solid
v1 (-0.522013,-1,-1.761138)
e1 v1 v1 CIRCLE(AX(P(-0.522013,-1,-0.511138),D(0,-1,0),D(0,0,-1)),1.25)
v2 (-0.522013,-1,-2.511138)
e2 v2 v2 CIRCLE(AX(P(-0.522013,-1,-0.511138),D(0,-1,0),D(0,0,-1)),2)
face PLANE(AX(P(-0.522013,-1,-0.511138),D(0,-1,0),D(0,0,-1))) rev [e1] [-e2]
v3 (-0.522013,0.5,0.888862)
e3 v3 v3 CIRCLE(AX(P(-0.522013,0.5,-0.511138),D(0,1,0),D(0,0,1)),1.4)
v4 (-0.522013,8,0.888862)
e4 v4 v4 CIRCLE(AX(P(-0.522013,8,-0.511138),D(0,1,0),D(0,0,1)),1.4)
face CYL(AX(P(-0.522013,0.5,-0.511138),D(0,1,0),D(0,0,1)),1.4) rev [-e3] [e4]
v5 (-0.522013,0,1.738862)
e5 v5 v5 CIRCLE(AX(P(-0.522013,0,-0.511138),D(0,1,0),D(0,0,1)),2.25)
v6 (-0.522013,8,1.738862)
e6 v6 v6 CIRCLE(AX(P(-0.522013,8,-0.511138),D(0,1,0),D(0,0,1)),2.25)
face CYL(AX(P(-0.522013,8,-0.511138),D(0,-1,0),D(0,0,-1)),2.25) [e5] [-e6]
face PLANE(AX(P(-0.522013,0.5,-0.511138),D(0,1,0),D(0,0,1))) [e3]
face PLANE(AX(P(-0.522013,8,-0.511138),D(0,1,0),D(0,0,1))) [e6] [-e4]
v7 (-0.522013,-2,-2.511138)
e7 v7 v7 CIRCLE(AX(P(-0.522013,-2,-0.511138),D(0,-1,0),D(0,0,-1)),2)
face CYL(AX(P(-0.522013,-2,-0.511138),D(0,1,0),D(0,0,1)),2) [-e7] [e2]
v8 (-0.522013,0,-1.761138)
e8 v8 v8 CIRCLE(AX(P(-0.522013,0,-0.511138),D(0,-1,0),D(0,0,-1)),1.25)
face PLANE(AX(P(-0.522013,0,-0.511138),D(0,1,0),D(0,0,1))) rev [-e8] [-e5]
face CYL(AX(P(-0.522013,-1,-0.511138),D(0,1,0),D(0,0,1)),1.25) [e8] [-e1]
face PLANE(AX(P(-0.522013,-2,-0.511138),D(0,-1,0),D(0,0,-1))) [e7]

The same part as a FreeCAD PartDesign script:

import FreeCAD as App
import Part
import Sketcher

V = App.Vector
Q = App.Units.Quantity

doc = App.newDocument("Part")
params = doc.addObject("Spreadsheet::Sheet", "Params")
for row, (alias, value) in enumerate([
    ("sketch1_diameter", "4.5 mm"),
    ("pad1_length", "8 mm"),
    ("sketch2_diameter", "2.75 mm"),
    ("pad2_length", "1 mm"),
    ("sketch3_diameter", "2.5 mm"),
    ("pad3_length", "1 mm"),
    ("sketch4_diameter", "4 mm"),
    ("pad4_length", "1 mm"),
    ("sketch5_diameter", "2.8 mm"),
    ("pocket1_length", "7.5 mm"),
], start=1):
    params.set(f"A{row}", alias)
    params.set(f"B{row}", "=" + value)
    params.setAlias(f"B{row}", alias)

body = doc.addObject("PartDesign::Body", "Body")

# Sketch on XZ plane
sketch1 = body.newObject("Sketcher::SketchObject", "Sketch")
sketch1.AttachmentSupport = (doc.getObject("XZ_Plane"), [""])
sketch1.MapMode = "FlatFace"
sketch1.addGeometry(Part.Circle(V(-0.522013, -0.511138, 0), V(0, 0, 1), 2.25), False)
sketch1.addConstraint([
    Sketcher.Constraint("Diameter", 0, Q("4.5 mm")),
    Sketcher.Constraint("DistanceY", 0, 3, -1, 1, Q("0.511138 mm")),
    Sketcher.Constraint("DistanceX", 0, 3, -1, 1, Q("0.522013 mm")),
])
sketch1.setExpression("Constraints[0]", "Params.sketch1_diameter")
pad1 = body.newObject("PartDesign::Pad", "Pad")
pad1.Profile = sketch1
pad1.setExpression("Length", "Params.pad1_length")
pad1.Reversed = True

# Sketch on XZ plane
sketch2 = body.newObject("Sketcher::SketchObject", "Sketch001")
sketch2.AttachmentSupport = (doc.getObject("XZ_Plane"), [""])
sketch2.MapMode = "FlatFace"
sketch2.addGeometry(Part.Circle(V(-0.522013, -0.511138, 0), V(0, 0, 1), 1.375), False)
sketch2.addConstraint([
    Sketcher.Constraint("Diameter", 0, Q("2.75 mm")),
    Sketcher.Constraint("DistanceY", 0, 3, -1, 1, Q("0.511138 mm")),
    Sketcher.Constraint("DistanceX", 0, 3, -1, 1, Q("0.522013 mm")),
])
sketch2.setExpression("Constraints[0]", "Params.sketch2_diameter")
pad2 = body.newObject("PartDesign::Pad", "Pad001")
pad2.Profile = sketch2
pad2.setExpression("Length", "Params.pad2_length")
pad2.Reversed = True

# Sketch on XZ plane
sketch3 = body.newObject("Sketcher::SketchObject", "Sketch002")
sketch3.AttachmentSupport = (doc.getObject("XZ_Plane"), [""])
sketch3.MapMode = "FlatFace"
sketch3.addGeometry(Part.Circle(V(-0.522013, -0.511138, 0), V(0, 0, 1), 1.25), False)
sketch3.addConstraint([
    Sketcher.Constraint("Diameter", 0, Q("2.5 mm")),
    Sketcher.Constraint("DistanceY", 0, 3, -1, 1, Q("0.511138 mm")),
    Sketcher.Constraint("DistanceX", 0, 3, -1, 1, Q("0.522013 mm")),
])
sketch3.setExpression("Constraints[0]", "Params.sketch3_diameter")
pad3 = body.newObject("PartDesign::Pad", "Pad002")
pad3.Profile = sketch3
pad3.setExpression("Length", "Params.pad3_length")

# Sketch on XZ plane
sketch4 = body.newObject("Sketcher::SketchObject", "Sketch003")
sketch4.AttachmentSupport = (doc.getObject("XZ_Plane"), [""])
sketch4.MapMode = "FlatFace"
sketch4.AttachmentOffset = App.Placement(V(0, 0, 1), App.Rotation())
sketch4.addGeometry(Part.Circle(V(-0.522013, -0.511138, 0), V(0, 0, 1), 2), False)
sketch4.addConstraint([
    Sketcher.Constraint("Diameter", 0, Q("4 mm")),
    Sketcher.Constraint("DistanceY", 0, 3, -1, 1, Q("0.511138 mm")),
    Sketcher.Constraint("DistanceX", 0, 3, -1, 1, Q("0.522013 mm")),
])
sketch4.setExpression("Constraints[0]", "Params.sketch4_diameter")
pad4 = body.newObject("PartDesign::Pad", "Pad003")
pad4.Profile = sketch4
pad4.setExpression("Length", "Params.pad4_length")

# Sketch on XZ plane
sketch5 = body.newObject("Sketcher::SketchObject", "Sketch004")
sketch5.AttachmentSupport = (doc.getObject("XZ_Plane"), [""])
sketch5.MapMode = "FlatFace"
sketch5.AttachmentOffset = App.Placement(V(0, 0, -8), App.Rotation())
sketch5.addGeometry(Part.Circle(V(-0.522013, -0.511138, 0), V(0, 0, 1), 1.4), False)
sketch5.addConstraint([
    Sketcher.Constraint("Diameter", 0, Q("2.8 mm")),
    Sketcher.Constraint("DistanceY", 0, 3, -1, 1, Q("0.511138 mm")),
    Sketcher.Constraint("DistanceX", 0, 3, -1, 1, Q("0.522013 mm")),
])
sketch5.setExpression("Constraints[0]", "Params.sketch5_diameter")
pocket1 = body.newObject("PartDesign::Pocket", "Pocket")
pocket1.Profile = sketch5
pocket1.setExpression("Length", "Params.pocket1_length")
pocket1.Reversed = True

doc.recompute()
